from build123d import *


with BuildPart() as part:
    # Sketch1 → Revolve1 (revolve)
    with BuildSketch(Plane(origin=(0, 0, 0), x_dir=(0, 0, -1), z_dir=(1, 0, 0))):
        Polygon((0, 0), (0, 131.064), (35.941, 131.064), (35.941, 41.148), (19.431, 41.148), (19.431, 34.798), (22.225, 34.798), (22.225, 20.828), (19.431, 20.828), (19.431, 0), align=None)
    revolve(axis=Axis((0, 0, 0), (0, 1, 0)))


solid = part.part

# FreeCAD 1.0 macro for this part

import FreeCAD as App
import Part
import Sketcher
Q = App.Units.Quantity

doc = App.newDocument("Part")
body = doc.addObject("PartDesign::Body", "Body")

sketch1 = body.newObject("Sketcher::SketchObject", "Sketch")
sketch1.AttachmentSupport = (doc.getObject("YZ_Plane"), [""])
sketch1.MapMode = "FlatFace"
sketch1.addGeometry(Part.LineSegment(App.Vector(131.064, 0, 0), App.Vector(0, 0, 0)), False)
sketch1.addGeometry(Part.LineSegment(App.Vector(0, 0, 0), App.Vector(0, -19.431, 0)), False)
sketch1.addGeometry(Part.LineSegment(App.Vector(0, -19.431, 0), App.Vector(20.828, -19.431, 0)), False)
sketch1.addGeometry(Part.LineSegment(App.Vector(20.828, -19.431, 0), App.Vector(20.828, -22.225, 0)), False)
sketch1.addGeometry(Part.LineSegment(App.Vector(20.828, -22.225, 0), App.Vector(34.798, -22.225, 0)), False)
sketch1.addGeometry(Part.LineSegment(App.Vector(34.798, -22.225, 0), App.Vector(34.798, -19.431, 0)), False)
sketch1.addGeometry(Part.LineSegment(App.Vector(34.798, -19.431, 0), App.Vector(41.148, -19.431, 0)), False)
sketch1.addGeometry(Part.LineSegment(App.Vector(41.148, -19.431, 0), App.Vector(41.148, -35.941, 0)), False)
sketch1.addGeometry(Part.LineSegment(App.Vector(41.148, -35.941, 0), App.Vector(131.064, -35.941, 0)), False)
sketch1.addGeometry(Part.LineSegment(App.Vector(131.064, -35.941, 0), App.Vector(131.064, 0, 0)), False)
sketch1.addConstraint(Sketcher.Constraint("Coincident", 0, 2, 1, 1))
sketch1.addConstraint(Sketcher.Constraint("Coincident", 1, 2, 2, 1))
sketch1.addConstraint(Sketcher.Constraint("Coincident", 2, 2, 3, 1))
sketch1.addConstraint(Sketcher.Constraint("Coincident", 3, 2, 4, 1))
sketch1.addConstraint(Sketcher.Constraint("Coincident", 4, 2, 5, 1))
sketch1.addConstraint(Sketcher.Constraint("Coincident", 5, 2, 6, 1))
sketch1.addConstraint(Sketcher.Constraint("Coincident", 6, 2, 7, 1))
sketch1.addConstraint(Sketcher.Constraint("Coincident", 7, 2, 8, 1))
sketch1.addConstraint(Sketcher.Constraint("Coincident", 8, 2, 9, 1))
sketch1.addConstraint(Sketcher.Constraint("Coincident", 9, 2, 0, 1))
sketch1.addConstraint(Sketcher.Constraint("Horizontal", 0))
sketch1.addConstraint(Sketcher.Constraint("Vertical", 1))
sketch1.addConstraint(Sketcher.Constraint("Horizontal", 2))
sketch1.addConstraint(Sketcher.Constraint("Vertical", 3))
sketch1.addConstraint(Sketcher.Constraint("Horizontal", 4))
sketch1.addConstraint(Sketcher.Constraint("Vertical", 5))
sketch1.addConstraint(Sketcher.Constraint("Horizontal", 6))
sketch1.addConstraint(Sketcher.Constraint("Vertical", 7))
sketch1.addConstraint(Sketcher.Constraint("Horizontal", 8))
sketch1.addConstraint(Sketcher.Constraint("Vertical", 9))
sketch1.addConstraint(Sketcher.Constraint("Coincident", 0, 2, -1, 1))
sketch1.addConstraint(Sketcher.Constraint("Horizontal", 2, 2, 5, 2))
sketch1.addConstraint(Sketcher.Constraint("DistanceX", 0, 2, 0, 1, Q("5.16 in")))
sketch1.addConstraint(Sketcher.Constraint("DistanceX", 2, 1, 2, 2, Q("0.82 in")))
sketch1.addConstraint(Sketcher.Constraint("DistanceX", 4, 1, 4, 2, Q("0.55 in")))
sketch1.addConstraint(Sketcher.Constraint("DistanceX", 6, 1, 6, 2, Q("0.25 in")))
sketch1.addConstraint(Sketcher.Constraint("DistanceY", 3, 2, 3, 1, Q("0.11 in")))
sketch1.addConstraint(Sketcher.Constraint("DistanceY", 7, 2, 7, 1, Q("0.65 in")))
sketch1.addConstraint(Sketcher.Constraint("DistanceY", 1, 2, 1, 1, Q("0.765 in")))
revolution = body.newObject("PartDesign::Revolution", "Revolution")
revolution.Profile = sketch1
revolution.ReferenceAxis = (sketch1, ["H_Axis"])
revolution.Angle = 360

doc.recompute()
